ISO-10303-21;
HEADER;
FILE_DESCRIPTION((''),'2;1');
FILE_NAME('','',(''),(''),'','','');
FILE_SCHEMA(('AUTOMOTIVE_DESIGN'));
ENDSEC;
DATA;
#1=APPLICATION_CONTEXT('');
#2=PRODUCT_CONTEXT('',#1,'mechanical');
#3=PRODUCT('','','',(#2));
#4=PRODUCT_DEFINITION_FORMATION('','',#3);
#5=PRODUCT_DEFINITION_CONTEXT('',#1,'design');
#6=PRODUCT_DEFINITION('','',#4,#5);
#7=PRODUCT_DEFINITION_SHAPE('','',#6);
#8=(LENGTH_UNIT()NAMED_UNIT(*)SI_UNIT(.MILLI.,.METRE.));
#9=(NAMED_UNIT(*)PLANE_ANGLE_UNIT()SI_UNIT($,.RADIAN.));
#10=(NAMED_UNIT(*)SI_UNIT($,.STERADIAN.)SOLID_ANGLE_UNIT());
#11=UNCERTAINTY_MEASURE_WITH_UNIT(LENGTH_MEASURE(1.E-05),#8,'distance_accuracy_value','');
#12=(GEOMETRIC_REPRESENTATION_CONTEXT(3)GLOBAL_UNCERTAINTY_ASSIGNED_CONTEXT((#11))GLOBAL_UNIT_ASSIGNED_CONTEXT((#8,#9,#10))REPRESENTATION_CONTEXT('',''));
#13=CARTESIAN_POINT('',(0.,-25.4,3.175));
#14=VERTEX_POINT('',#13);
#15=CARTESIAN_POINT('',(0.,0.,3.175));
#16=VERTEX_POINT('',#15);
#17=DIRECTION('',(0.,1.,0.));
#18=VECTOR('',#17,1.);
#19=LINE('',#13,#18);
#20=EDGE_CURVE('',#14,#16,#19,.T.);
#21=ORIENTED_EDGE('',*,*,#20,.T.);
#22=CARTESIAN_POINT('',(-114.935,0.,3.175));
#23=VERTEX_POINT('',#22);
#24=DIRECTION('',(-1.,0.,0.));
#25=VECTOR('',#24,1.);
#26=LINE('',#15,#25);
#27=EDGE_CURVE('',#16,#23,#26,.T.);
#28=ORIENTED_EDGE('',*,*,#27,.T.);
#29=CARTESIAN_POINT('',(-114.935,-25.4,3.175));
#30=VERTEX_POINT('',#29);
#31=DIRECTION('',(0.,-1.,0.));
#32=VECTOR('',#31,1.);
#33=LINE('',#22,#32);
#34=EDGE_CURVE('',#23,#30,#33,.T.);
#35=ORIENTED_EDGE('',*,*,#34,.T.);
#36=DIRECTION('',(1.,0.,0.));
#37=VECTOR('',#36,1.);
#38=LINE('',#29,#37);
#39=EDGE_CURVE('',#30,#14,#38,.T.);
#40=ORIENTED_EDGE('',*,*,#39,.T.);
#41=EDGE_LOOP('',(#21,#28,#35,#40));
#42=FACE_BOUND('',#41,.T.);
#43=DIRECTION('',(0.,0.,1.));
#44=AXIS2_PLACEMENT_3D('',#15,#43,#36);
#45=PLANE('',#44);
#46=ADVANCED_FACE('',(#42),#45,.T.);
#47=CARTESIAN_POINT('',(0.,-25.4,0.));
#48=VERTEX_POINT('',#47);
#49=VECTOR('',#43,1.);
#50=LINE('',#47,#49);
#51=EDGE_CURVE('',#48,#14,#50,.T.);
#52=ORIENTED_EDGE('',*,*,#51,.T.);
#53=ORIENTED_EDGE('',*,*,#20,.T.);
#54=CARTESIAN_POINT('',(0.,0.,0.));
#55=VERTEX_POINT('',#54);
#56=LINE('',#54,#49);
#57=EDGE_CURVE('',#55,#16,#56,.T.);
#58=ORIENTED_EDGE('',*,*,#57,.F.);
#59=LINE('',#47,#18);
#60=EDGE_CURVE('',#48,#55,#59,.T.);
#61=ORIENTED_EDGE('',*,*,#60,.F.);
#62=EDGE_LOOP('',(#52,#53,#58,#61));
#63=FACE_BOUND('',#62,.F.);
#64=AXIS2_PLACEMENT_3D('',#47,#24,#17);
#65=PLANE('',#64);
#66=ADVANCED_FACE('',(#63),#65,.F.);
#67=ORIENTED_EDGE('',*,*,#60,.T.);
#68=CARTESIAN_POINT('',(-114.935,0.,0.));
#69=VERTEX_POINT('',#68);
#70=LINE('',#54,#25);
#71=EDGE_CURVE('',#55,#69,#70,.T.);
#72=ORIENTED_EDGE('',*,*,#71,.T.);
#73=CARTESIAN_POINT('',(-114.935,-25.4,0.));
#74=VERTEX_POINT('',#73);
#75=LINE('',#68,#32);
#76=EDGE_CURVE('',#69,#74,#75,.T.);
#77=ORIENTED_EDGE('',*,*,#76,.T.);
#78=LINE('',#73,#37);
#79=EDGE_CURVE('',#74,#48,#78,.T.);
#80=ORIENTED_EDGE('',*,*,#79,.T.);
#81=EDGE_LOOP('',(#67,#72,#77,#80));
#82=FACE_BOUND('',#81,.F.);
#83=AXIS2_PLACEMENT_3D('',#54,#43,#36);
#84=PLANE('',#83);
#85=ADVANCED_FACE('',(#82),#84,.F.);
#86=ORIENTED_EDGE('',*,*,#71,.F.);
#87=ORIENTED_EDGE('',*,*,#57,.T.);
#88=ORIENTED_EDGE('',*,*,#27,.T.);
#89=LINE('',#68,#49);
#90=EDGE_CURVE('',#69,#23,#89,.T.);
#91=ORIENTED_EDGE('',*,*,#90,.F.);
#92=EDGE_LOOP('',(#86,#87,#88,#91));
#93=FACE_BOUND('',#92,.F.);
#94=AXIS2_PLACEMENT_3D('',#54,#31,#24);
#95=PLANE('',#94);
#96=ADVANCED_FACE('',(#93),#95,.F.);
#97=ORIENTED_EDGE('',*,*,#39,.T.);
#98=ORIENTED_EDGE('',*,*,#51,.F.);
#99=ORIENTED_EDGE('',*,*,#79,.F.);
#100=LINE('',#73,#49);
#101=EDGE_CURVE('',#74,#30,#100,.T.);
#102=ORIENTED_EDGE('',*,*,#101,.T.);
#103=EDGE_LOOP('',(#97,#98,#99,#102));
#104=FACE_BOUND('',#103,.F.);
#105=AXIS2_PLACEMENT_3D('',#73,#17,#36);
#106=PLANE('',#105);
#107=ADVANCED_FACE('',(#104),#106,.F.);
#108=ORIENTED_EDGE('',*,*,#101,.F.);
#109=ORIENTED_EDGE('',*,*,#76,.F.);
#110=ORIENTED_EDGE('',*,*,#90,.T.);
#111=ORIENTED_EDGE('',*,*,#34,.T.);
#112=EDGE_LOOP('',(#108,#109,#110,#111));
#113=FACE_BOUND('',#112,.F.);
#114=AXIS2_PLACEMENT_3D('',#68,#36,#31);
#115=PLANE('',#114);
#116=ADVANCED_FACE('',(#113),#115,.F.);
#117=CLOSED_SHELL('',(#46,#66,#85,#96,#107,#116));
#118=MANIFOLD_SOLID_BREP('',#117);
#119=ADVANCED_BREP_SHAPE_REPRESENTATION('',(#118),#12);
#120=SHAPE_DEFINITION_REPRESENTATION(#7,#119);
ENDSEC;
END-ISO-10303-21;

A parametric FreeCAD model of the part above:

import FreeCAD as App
import Part
import Sketcher
Q = App.Units.Quantity


def add_polygon(sketch, points):
    """Adds a closed chain of lines whose ends are joined by coincident constraints."""
    first, n = sketch.GeometryCount, len(points)
    for a, b in zip(points, points[1:] + points[:1]):
        sketch.addGeometry(Part.LineSegment(App.Vector(*a, 0), App.Vector(*b, 0)), False)
    for i in range(n):
        sketch.addConstraint(Sketcher.Constraint("Coincident", first + i, 2, first + (i + 1) % n, 1))

doc = App.newDocument("Part")
body = doc.addObject("PartDesign::Body", "Body")

# Sketch on XY plane
sketch1 = doc.addObject("Sketcher::SketchObject", "Sketch")
body.addObject(sketch1)
sketch1.AttachmentSupport = (doc.XY_Plane, [""])
sketch1.MapMode = "FlatFace"
add_polygon(sketch1, [(0, -25), (0, 0), (-115, 0), (-115, -25)])  # lines 0-3
sketch1.addConstraint(Sketcher.Constraint("Vertical", 0))
sketch1.addConstraint(Sketcher.Constraint("Horizontal", 1))
sketch1.addConstraint(Sketcher.Constraint("Vertical", 2))
sketch1.addConstraint(Sketcher.Constraint("Horizontal", 3))
sketch1.addConstraint(Sketcher.Constraint("Coincident", 0, 2, -1, 1))
sketch1.addConstraint(Sketcher.Constraint("DistanceY", 0, 1, 0, 2, Q("1 in")))
sketch1.addConstraint(Sketcher.Constraint("DistanceX", 1, 2, 1, 1, Q("4.525 in")))
pad1 = doc.addObject("PartDesign::Pad", "Pad")
body.addObject(pad1)
pad1.Profile = sketch1
pad1.Length = Q("0.125 in")

doc.recompute()
